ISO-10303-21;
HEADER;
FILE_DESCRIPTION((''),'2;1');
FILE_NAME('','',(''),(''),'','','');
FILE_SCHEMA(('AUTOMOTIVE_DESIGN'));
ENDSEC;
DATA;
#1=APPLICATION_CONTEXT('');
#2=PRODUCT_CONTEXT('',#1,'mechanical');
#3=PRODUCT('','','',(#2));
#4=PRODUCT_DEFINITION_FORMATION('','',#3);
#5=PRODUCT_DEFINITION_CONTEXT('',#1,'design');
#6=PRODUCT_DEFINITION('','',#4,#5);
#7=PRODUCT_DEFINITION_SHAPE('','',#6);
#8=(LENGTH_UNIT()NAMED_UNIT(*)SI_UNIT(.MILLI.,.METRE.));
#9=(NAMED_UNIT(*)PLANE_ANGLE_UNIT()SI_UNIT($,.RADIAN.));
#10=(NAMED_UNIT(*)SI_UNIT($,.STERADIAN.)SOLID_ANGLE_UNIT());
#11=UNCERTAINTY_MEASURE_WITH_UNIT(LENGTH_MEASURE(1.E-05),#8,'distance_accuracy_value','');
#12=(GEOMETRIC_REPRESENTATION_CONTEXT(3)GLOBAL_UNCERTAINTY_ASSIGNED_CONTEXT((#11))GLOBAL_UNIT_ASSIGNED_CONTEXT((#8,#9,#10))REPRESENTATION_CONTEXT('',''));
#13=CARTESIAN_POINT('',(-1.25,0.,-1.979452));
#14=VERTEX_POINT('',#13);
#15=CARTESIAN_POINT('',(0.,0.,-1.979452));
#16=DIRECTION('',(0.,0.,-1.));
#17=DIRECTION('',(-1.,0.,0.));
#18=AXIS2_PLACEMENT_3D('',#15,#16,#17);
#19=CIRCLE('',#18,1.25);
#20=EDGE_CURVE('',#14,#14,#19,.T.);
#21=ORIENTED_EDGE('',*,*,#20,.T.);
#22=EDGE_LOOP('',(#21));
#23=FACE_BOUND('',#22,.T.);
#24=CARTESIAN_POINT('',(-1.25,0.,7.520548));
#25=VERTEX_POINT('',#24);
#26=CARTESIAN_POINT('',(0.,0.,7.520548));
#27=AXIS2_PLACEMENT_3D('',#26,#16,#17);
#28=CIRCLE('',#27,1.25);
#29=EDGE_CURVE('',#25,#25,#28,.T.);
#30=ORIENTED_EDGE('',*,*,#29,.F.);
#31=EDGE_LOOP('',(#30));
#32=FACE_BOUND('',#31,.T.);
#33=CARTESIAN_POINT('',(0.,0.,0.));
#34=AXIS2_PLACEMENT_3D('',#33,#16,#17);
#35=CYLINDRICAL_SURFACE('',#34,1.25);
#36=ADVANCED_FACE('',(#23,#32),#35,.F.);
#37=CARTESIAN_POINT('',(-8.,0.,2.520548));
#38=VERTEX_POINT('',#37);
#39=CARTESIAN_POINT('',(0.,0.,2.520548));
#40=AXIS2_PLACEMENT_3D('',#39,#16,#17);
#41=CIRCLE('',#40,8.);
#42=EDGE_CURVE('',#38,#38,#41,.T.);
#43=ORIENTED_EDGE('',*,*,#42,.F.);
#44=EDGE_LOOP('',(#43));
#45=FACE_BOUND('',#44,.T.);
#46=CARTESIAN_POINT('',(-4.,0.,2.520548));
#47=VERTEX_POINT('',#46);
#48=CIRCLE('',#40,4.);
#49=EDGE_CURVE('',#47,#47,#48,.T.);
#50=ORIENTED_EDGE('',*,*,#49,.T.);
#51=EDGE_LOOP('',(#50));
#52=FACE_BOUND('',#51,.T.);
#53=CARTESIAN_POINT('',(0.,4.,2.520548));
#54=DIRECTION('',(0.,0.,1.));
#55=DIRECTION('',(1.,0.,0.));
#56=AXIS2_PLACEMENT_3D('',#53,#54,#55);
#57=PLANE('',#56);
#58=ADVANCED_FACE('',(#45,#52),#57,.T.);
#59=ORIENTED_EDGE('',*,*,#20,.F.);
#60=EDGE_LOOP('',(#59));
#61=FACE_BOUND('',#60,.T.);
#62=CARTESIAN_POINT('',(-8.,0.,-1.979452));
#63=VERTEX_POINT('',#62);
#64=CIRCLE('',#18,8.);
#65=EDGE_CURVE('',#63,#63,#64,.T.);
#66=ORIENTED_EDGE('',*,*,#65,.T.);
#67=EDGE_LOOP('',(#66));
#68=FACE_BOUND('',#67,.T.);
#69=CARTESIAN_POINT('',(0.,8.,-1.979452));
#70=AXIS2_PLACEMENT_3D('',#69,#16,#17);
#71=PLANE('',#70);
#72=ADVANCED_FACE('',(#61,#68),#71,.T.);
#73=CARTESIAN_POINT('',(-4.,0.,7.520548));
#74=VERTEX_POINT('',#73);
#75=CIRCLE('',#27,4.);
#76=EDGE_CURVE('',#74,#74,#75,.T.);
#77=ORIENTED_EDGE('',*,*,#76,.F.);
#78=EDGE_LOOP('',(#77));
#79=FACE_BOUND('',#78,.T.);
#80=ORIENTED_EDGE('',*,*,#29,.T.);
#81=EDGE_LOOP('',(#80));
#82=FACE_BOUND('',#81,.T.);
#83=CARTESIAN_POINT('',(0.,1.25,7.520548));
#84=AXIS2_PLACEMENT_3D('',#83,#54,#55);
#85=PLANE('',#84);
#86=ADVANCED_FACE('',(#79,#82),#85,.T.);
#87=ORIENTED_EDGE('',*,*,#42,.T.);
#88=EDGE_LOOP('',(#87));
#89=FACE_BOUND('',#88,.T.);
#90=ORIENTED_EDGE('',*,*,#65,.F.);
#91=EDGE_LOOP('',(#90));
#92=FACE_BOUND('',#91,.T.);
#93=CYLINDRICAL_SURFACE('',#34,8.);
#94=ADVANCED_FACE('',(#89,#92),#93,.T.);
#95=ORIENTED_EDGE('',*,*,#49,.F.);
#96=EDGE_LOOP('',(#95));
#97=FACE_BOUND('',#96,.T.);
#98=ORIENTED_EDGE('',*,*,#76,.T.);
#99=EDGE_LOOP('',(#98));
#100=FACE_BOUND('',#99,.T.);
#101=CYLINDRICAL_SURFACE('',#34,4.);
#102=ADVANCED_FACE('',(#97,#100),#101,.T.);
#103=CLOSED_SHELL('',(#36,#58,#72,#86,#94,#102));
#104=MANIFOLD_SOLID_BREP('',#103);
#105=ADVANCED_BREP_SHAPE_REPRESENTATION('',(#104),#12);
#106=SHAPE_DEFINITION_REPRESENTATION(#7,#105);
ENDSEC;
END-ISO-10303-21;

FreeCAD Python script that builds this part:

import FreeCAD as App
import Part
import Sketcher
from FreeCAD import Vector


def add_polygon(sketch, points):
    """Adds a closed chain of lines whose ends are joined by coincident constraints."""
    first, n = sketch.GeometryCount, len(points)
    for a, b in zip(points, points[1:] + points[:1]):
        sketch.addGeometry(Part.LineSegment(App.Vector(*a, 0), App.Vector(*b, 0)), False)
    for i in range(n):
        sketch.addConstraint(Sketcher.Constraint("Coincident", first + i, 2, first + (i + 1) % n, 1))

doc = App.newDocument("Part")
body = doc.addObject("PartDesign::Body", "Body")

# Sketch on YZ plane
sketch1 = doc.addObject("Sketcher::SketchObject", "Sketch")
body.addObject(sketch1)
sketch1.AttachmentSupport = (doc.YZ_Plane, [""])
sketch1.MapMode = "FlatFace"
add_polygon(sketch1, [(4, 2.5), (4, 7.5), (1.2, 7.5), (1.2, -2), (8, -2), (8, 2.5)])  # lines 0-5
sketch1.addConstraint([
    Sketcher.Constraint("Vertical", 0),
    Sketcher.Constraint("Horizontal", 1),
    Sketcher.Constraint("Vertical", 2),
    Sketcher.Constraint("Horizontal", 3),
    Sketcher.Constraint("Vertical", 4),
    Sketcher.Constraint("Horizontal", 5),
    Sketcher.Constraint("DistanceX", 5, 2, 5, 1, 4.0),
    Sketcher.Constraint("DistanceY", 0, 1, 0, 2, 5.0),
    Sketcher.Constraint("DistanceY", 2, 2, 2, 1, 9.5),
    Sketcher.Constraint("DistanceX", -1, 1, 0, 2, 4.0),
    Sketcher.Constraint("DistanceX", 1, 2, 1, 1, 2.75),
    Sketcher.Constraint("DistanceY", -1, 1, 0, 2, 7.520548),
])
revolution = doc.addObject("PartDesign::Revolution", "Revolution")
body.addObject(revolution)
revolution.Profile = sketch1
revolution.ReferenceAxis = (sketch1, ["V_Axis"])
revolution.Angle = 360

doc.recompute()
